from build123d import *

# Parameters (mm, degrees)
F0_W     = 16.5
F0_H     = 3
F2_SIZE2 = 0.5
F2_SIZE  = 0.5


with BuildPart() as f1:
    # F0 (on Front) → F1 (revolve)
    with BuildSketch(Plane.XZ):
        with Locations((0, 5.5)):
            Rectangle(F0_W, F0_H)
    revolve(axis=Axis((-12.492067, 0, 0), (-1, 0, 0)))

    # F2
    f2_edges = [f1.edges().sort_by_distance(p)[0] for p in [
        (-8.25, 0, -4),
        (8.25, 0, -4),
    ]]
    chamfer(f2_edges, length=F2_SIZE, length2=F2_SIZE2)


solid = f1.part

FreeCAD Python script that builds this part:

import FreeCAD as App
import Part
import Sketcher

V = App.Vector


def edges_at(feature, points):
    """Names of the edges that pass closest to the given points."""
    edges = feature.Shape.Edges
    near = lambda p: min(range(len(edges)), key=lambda i: edges[i].distToShape(Part.Vertex(*p))[0])
    return sorted({f"Edge{near(p) + 1}" for p in points})

doc = App.newDocument("Part")
body = doc.addObject("PartDesign::Body", "Body")

# Sketch on XZ plane
sketch1 = body.newObject("Sketcher::SketchObject", "Sketch")
sketch1.AttachmentSupport = (doc.getObject("XZ_Plane"), [""])
sketch1.MapMode = "FlatFace"
sketch1.addGeometry(Part.LineSegment(V(-8.25, 7, 0), V(-8.25, 4, 0)), False)
sketch1.addGeometry(Part.LineSegment(V(-8.25, 4, 0), V(8.25, 4, 0)), False)
sketch1.addGeometry(Part.LineSegment(V(8.25, 4, 0), V(8.25, 7, 0)), False)
sketch1.addGeometry(Part.LineSegment(V(8.25, 7, 0), V(-8.25, 7, 0)), False)
sketch1.addConstraint(Sketcher.Constraint("Coincident", 0, 2, 1, 1))
sketch1.addConstraint(Sketcher.Constraint("Coincident", 1, 2, 2, 1))
sketch1.addConstraint(Sketcher.Constraint("Coincident", 2, 2, 3, 1))
sketch1.addConstraint(Sketcher.Constraint("Coincident", 3, 2, 0, 1))
sketch1.addConstraint(Sketcher.Constraint("Vertical", 0))
sketch1.addConstraint(Sketcher.Constraint("Horizontal", 1))
sketch1.addConstraint(Sketcher.Constraint("Vertical", 2))
sketch1.addConstraint(Sketcher.Constraint("Horizontal", 3))
sketch1.addConstraint(Sketcher.Constraint("DistanceY", 0, 2, 0, 1, 3.0))
sketch1.addConstraint(Sketcher.Constraint("DistanceX", 1, 1, 1, 2, 16.5))
sketch1.addConstraint(Sketcher.Constraint("DistanceY", -1, 1, 0, 2, 4.0))
sketch1.addConstraint(Sketcher.Constraint("DistanceX", 0, 2, -1, 1, 8.25))
revolution = body.newObject("PartDesign::Revolution", "Revolution")
revolution.Profile = sketch1
revolution.ReferenceAxis = (sketch1, ["H_Axis"])
revolution.Angle = 360
doc.recompute()

chamfer = body.newObject("PartDesign::Chamfer", "Chamfer")
chamfer.Base = (revolution, edges_at(revolution, [(-8.25, 0, -4), (8.25, 0, -4)]))
chamfer.ChamferType = "Two distances"
chamfer.Size = 0.5
chamfer.Size2 = 0.5

doc.recompute()
